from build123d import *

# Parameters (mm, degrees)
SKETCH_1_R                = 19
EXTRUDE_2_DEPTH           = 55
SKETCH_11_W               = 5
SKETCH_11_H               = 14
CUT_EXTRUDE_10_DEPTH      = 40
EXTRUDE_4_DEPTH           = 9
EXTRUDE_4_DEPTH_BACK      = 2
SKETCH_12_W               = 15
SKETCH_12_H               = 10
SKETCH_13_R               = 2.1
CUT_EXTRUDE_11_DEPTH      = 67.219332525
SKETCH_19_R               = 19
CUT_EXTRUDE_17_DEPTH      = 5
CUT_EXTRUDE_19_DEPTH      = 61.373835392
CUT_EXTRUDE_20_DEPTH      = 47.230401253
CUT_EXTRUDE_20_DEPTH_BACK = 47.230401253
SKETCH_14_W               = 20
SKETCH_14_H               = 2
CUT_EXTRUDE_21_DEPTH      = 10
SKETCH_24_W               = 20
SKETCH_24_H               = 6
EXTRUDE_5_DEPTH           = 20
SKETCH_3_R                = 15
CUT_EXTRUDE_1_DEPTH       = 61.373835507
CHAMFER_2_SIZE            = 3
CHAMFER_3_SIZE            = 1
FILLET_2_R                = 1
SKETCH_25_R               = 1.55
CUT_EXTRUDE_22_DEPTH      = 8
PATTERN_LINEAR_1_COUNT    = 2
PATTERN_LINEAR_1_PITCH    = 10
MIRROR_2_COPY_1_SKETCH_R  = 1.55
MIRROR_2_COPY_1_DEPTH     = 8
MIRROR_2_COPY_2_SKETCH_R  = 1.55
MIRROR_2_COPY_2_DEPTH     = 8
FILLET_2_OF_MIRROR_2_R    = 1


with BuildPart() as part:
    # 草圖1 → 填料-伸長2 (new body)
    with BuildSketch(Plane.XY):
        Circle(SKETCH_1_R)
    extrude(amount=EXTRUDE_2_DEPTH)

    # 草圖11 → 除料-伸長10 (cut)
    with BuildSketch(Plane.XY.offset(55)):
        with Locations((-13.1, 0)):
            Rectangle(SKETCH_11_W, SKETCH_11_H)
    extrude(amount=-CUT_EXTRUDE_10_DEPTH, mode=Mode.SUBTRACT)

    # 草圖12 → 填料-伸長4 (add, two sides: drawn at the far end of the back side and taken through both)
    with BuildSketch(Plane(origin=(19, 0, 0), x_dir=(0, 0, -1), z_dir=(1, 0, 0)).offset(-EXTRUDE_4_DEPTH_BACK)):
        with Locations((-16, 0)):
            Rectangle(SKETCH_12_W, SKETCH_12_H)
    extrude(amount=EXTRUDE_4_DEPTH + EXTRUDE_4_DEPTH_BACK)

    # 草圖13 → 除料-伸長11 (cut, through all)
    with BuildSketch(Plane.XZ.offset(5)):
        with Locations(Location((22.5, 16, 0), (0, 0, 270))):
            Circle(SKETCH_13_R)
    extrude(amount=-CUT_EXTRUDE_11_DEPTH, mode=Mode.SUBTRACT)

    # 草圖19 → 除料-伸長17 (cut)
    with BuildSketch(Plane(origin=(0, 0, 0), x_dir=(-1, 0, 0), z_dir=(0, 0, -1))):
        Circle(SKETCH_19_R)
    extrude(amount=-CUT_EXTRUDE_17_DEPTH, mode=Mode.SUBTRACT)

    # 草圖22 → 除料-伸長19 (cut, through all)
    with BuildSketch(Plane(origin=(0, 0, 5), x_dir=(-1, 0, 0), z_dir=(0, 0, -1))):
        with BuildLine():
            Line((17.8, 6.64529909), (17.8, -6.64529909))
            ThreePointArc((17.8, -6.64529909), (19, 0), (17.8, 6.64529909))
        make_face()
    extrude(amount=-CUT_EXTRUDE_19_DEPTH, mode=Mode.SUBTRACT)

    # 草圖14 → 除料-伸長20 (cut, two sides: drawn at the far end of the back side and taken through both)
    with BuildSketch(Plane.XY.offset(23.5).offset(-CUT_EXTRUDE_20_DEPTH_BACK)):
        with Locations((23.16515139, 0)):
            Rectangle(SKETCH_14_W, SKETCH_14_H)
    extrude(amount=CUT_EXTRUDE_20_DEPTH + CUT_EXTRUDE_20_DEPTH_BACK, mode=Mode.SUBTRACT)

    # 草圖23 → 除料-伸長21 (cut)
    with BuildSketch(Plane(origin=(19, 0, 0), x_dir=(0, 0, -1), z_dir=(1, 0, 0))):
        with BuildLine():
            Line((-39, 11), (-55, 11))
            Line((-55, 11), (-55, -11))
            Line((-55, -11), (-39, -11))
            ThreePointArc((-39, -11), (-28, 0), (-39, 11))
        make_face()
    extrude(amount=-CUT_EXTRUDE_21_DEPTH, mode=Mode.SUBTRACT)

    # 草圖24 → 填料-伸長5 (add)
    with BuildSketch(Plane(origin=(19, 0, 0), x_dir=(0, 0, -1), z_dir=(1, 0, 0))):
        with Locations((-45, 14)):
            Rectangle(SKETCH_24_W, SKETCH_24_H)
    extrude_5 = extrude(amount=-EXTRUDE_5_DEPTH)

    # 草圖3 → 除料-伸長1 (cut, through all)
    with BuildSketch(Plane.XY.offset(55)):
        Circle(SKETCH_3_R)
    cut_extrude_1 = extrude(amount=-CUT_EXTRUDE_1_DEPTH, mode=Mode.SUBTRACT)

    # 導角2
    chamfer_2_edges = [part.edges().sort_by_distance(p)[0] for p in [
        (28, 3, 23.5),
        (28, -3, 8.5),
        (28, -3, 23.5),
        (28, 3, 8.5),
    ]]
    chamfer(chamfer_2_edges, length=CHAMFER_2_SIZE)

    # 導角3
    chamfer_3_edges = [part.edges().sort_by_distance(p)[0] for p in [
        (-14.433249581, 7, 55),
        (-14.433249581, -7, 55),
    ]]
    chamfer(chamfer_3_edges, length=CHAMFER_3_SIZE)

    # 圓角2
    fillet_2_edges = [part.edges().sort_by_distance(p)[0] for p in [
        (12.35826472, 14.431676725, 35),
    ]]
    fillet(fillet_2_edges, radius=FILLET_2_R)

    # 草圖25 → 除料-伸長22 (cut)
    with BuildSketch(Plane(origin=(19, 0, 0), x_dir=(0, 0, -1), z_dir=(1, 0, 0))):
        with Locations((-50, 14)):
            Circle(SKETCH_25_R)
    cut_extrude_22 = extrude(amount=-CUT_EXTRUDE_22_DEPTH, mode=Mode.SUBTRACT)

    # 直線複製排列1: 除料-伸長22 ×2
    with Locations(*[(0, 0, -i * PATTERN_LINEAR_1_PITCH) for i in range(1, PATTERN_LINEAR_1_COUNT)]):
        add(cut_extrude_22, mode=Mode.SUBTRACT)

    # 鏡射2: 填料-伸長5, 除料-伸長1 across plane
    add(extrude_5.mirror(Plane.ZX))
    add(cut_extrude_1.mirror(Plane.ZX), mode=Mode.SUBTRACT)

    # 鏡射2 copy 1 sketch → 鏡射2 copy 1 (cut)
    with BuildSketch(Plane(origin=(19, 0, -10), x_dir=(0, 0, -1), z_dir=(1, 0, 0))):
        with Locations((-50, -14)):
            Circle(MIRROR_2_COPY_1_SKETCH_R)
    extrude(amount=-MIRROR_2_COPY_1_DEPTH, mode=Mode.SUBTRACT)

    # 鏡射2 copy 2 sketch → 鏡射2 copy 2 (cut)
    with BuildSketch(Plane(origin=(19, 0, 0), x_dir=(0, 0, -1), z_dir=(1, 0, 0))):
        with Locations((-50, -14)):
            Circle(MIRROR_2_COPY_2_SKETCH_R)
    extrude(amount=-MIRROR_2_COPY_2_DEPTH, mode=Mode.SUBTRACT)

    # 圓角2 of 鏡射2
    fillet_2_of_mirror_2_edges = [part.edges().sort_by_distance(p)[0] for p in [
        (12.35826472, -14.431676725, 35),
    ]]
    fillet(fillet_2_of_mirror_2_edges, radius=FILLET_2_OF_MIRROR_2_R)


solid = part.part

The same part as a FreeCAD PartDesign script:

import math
import FreeCAD as App
import Part
import Sketcher
Q = App.Units.Quantity


def edges_at(feature, points):
    """Names of the edges that pass closest to the given points."""
    edges = feature.Shape.Edges
    near = lambda p: min(range(len(edges)), key=lambda i: edges[i].distToShape(Part.Vertex(*p))[0])
    return sorted({f"Edge{near(p) + 1}" for p in points})


def add_polygon(sketch, points):
    """Adds a closed chain of lines whose ends are joined by coincident constraints."""
    first, n = sketch.GeometryCount, len(points)
    for a, b in zip(points, points[1:] + points[:1]):
        sketch.addGeometry(Part.LineSegment(App.Vector(*a, 0), App.Vector(*b, 0)), False)
    for i in range(n):
        sketch.addConstraint(Sketcher.Constraint("Coincident", first + i, 2, first + (i + 1) % n, 1))

doc = App.newDocument("Part")
body = doc.addObject("PartDesign::Body", "Body")

sketch1 = body.newObject("Sketcher::SketchObject", "Sketch")
sketch1.AttachmentSupport = (doc.getObject("XY_Plane"), [""])
sketch1.MapMode = "FlatFace"
sketch1.addGeometry(Part.Circle(App.Vector(0, 0, 0), App.Vector(0, 0, 1), 19), False)
sketch1.addConstraint([
    Sketcher.Constraint("Coincident", 0, 3, -1, 1),
    Sketcher.Constraint("Diameter", 0, Q("38 mm")),
])
pad1 = body.newObject("PartDesign::Pad", "Pad")
pad1.Profile = sketch1
pad1.Length = 55

sketch2 = body.newObject("Sketcher::SketchObject", "Sketch001")
sketch2.AttachmentSupport = (doc.getObject("XY_Plane"), [""])
sketch2.MapMode = "FlatFace"
sketch2.AttachmentOffset = App.Placement(App.Vector(0, 0, 55), App.Rotation())
add_polygon(sketch2, [(-16, 7), (-16, -7), (-11, -7), (-11, 7)])
sketch2.addConstraint([
    Sketcher.Constraint("Vertical", 0),
    Sketcher.Constraint("Horizontal", 1),
    Sketcher.Constraint("Vertical", 2),
    Sketcher.Constraint("Horizontal", 3),
    Sketcher.Constraint("DistanceX", 1, 1, 1, 2, Q("5 mm")),
    Sketcher.Constraint("DistanceY", 0, 2, 0, 1, Q("14 mm")),
    Sketcher.Constraint("DistanceY", 0, 2, -1, 1, Q("7 mm")),
    Sketcher.Constraint("DistanceX", 0, 2, -1, 1, Q("15.6 mm")),
])
pocket1 = body.newObject("PartDesign::Pocket", "Pocket")
pocket1.Profile = sketch2
pocket1.Length = 40

sketch3 = body.newObject("Sketcher::SketchObject", "Sketch002")
sketch3.AttachmentSupport = (doc.getObject("YZ_Plane"), [""])
sketch3.MapMode = "FlatFace"
sketch3.AttachmentOffset = App.Placement(App.Vector(0, 0, 19), App.Rotation())
add_polygon(sketch3, [(5, 24), (-5, 24), (-5, 8), (5, 8)])
sketch3.addConstraint([
    Sketcher.Constraint("Horizontal", 0),
    Sketcher.Constraint("Vertical", 1),
    Sketcher.Constraint("Horizontal", 2),
    Sketcher.Constraint("Vertical", 3),
    Sketcher.Constraint("DistanceX", 0, 2, 0, 1, Q("10 mm")),
    Sketcher.Constraint("DistanceY", 1, 2, 1, 1, Q("15 mm")),
    Sketcher.Constraint("DistanceX", 0, 2, -1, 1, Q("5 mm")),
    Sketcher.Constraint("DistanceY", -1, 1, 0, 2, Q("23.5 mm")),
])
pad2 = body.newObject("PartDesign::Pad", "Pad001")
pad2.Profile = sketch3
pad2.Type = "TwoLengths"
pad2.Length = 9
pad2.Length2 = 2

sketch4 = body.newObject("Sketcher::SketchObject", "Sketch003")
sketch4.AttachmentSupport = (doc.getObject("XZ_Plane"), [""])
sketch4.MapMode = "FlatFace"
sketch4.AttachmentOffset = App.Placement(App.Vector(0, 0, 5), App.Rotation())
sketch4.addGeometry(Part.Circle(App.Vector(22.5, 16, 0), App.Vector(0, 0, 1), 2.1), False)
sketch4.addConstraint([
    Sketcher.Constraint("Diameter", 0, Q("4.2 mm")),
    Sketcher.Constraint("DistanceY", -1, 1, 0, 3, Q("16 mm")),
    Sketcher.Constraint("DistanceX", -1, 1, 0, 3, Q("22.5 mm")),
])
pocket2 = body.newObject("PartDesign::Pocket", "Pocket001")
pocket2.Profile = sketch4
pocket2.Type = "ThroughAll"

sketch5 = body.newObject("Sketcher::SketchObject", "Sketch004")
sketch5.AttachmentSupport = (doc.getObject("XY_Plane"), [""])
sketch5.MapMode = "FlatFace"
sketch5.addGeometry(Part.Circle(App.Vector(0, 0, 0), App.Vector(0, 0, 1), 19), False)
sketch5.addConstraint([
    Sketcher.Constraint("Coincident", 0, 3, -1, 1),
    Sketcher.Constraint("Diameter", 0, Q("38 mm")),
])
pocket3 = body.newObject("PartDesign::Pocket", "Pocket002")
pocket3.Profile = sketch5
pocket3.Length = 5
pocket3.Reversed = True

sketch6 = body.newObject("Sketcher::SketchObject", "Sketch005")
sketch6.AttachmentSupport = (doc.getObject("XY_Plane"), [""])
sketch6.MapMode = "FlatFace"
sketch6.AttachmentOffset = App.Placement(App.Vector(0, 0, 5), App.Rotation())
sketch6.addGeometry([
    Part.LineSegment(App.Vector(-18, 7, 0), App.Vector(-18, -7, 0)),
    Part.ArcOfCircle(Part.Circle(App.Vector(0, 0, 0), App.Vector(0, 0, 1), 19), math.radians(160), math.radians(200)),
], False)
sketch6.addConstraint([
    Sketcher.Constraint("Coincident", 0, 1, 1, 1),
    Sketcher.Constraint("Coincident", 1, 2, 0, 2),
    Sketcher.Constraint("Vertical", 0),
    Sketcher.Constraint("Coincident", 1, 3, -1, 1),
    Sketcher.Constraint("Radius", 1, Q("19 mm")),
    Sketcher.Constraint("DistanceX", 0, 1, -1, 1, Q("17.8 mm")),
])
pocket4 = body.newObject("PartDesign::Pocket", "Pocket003")
pocket4.Profile = sketch6
pocket4.Type = "ThroughAll"
pocket4.Reversed = True

sketch7 = body.newObject("Sketcher::SketchObject", "Sketch006")
sketch7.AttachmentSupport = (doc.getObject("XY_Plane"), [""])
sketch7.MapMode = "FlatFace"
sketch7.AttachmentOffset = App.Placement(App.Vector(0, 0, 23.5), App.Rotation())
add_polygon(sketch7, [(13.2, 1), (13.2, -1), (33.2, -1), (33.2, 1)])
sketch7.addConstraint([
    Sketcher.Constraint("Vertical", 0),
    Sketcher.Constraint("Horizontal", 1),
    Sketcher.Constraint("Vertical", 2),
    Sketcher.Constraint("Horizontal", 3),
    Sketcher.Constraint("DistanceX", 1, 1, 1, 2, Q("20 mm")),
    Sketcher.Constraint("DistanceY", 0, 2, 0, 1, Q("2 mm")),
    Sketcher.Constraint("DistanceY", 0, 2, -1, 1, Q("1 mm")),
    Sketcher.Constraint("DistanceX", -1, 1, 0, 2, Q("13.165151 mm")),
])
pocket5 = body.newObject("PartDesign::Pocket", "Pocket004")
pocket5.Profile = sketch7
pocket5.Type = "ThroughAll"
pocket5.Midplane = True

sketch8 = body.newObject("Sketcher::SketchObject", "Sketch007")
sketch8.AttachmentSupport = (doc.getObject("YZ_Plane"), [""])
sketch8.MapMode = "FlatFace"
sketch8.AttachmentOffset = App.Placement(App.Vector(0, 0, 19), App.Rotation())
sketch8.addGeometry([
    Part.LineSegment(App.Vector(11, 39, 0), App.Vector(11, 55, 0)),
    Part.LineSegment(App.Vector(11, 55, 0), App.Vector(-11, 55, 0)),
    Part.LineSegment(App.Vector(-11, 55, 0), App.Vector(-11, 39, 0)),
    Part.ArcOfCircle(Part.Circle(App.Vector(0, 39, 0), App.Vector(0, 0, 1), 11), math.radians(180), math.radians(360)),
], False)
sketch8.addConstraint([
    Sketcher.Constraint("Coincident", 0, 2, 1, 1),
    Sketcher.Constraint("Coincident", 1, 2, 2, 1),
    Sketcher.Constraint("Tangent", 2, 2, 3, 1),
    Sketcher.Constraint("Tangent", 3, 2, 0, 1),
    Sketcher.Constraint("Vertical", 0),
    Sketcher.Constraint("Horizontal", 1),
    Sketcher.Constraint("Vertical", 2),
    Sketcher.Constraint("PointOnObject", 3, 3, -2),
    Sketcher.Constraint("Radius", 3, Q("11 mm")),
    Sketcher.Constraint("DistanceY", 0, 1, 0, 2, Q("16 mm")),
    Sketcher.Constraint("DistanceY", -1, 1, 3, 3, Q("39 mm")),
])
pocket6 = body.newObject("PartDesign::Pocket", "Pocket005")
pocket6.Profile = sketch8
pocket6.Length = 10

sketch9 = body.newObject("Sketcher::SketchObject", "Sketch008")
sketch9.AttachmentSupport = (doc.getObject("YZ_Plane"), [""])
sketch9.MapMode = "FlatFace"
sketch9.AttachmentOffset = App.Placement(App.Vector(0, 0, 19), App.Rotation())
add_polygon(sketch9, [(17, 55), (11, 55), (11, 35), (17, 35)])
sketch9.addConstraint([
    Sketcher.Constraint("Horizontal", 0),
    Sketcher.Constraint("Vertical", 1),
    Sketcher.Constraint("Horizontal", 2),
    Sketcher.Constraint("Vertical", 3),
    Sketcher.Constraint("DistanceX", 0, 2, 0, 1, Q("6 mm")),
    Sketcher.Constraint("DistanceY", 1, 2, 1, 1, Q("20 mm")),
    Sketcher.Constraint("DistanceX", -1, 1, 0, 2, Q("11 mm")),
    Sketcher.Constraint("DistanceY", -1, 1, 0, 2, Q("55 mm")),
])
pad3 = body.newObject("PartDesign::Pad", "Pad002")
pad3.Profile = sketch9
pad3.Length = 20
pad3.Reversed = True

sketch10 = body.newObject("Sketcher::SketchObject", "Sketch009")
sketch10.AttachmentSupport = (doc.getObject("XY_Plane"), [""])
sketch10.MapMode = "FlatFace"
sketch10.AttachmentOffset = App.Placement(App.Vector(0, 0, 55), App.Rotation())
sketch10.addGeometry(Part.Circle(App.Vector(0, 0, 0), App.Vector(0, 0, 1), 15), False)
sketch10.addConstraint([
    Sketcher.Constraint("Coincident", 0, 3, -1, 1),
    Sketcher.Constraint("Diameter", 0, Q("30 mm")),
])
pocket7 = body.newObject("PartDesign::Pocket", "Pocket006")
pocket7.Profile = sketch10
pocket7.Type = "ThroughAll"
doc.recompute()

chamfer = body.newObject("PartDesign::Chamfer", "Chamfer")
chamfer.Base = (pocket7, edges_at(pocket7, [
    (28, 3, 23.5),
    (28, -3, 8.5),
    (28, -3, 23.5),
    (28, 3, 8.5),
]))
chamfer.Size = 3
doc.recompute()

chamfer2 = body.newObject("PartDesign::Chamfer", "Chamfer001")
chamfer2.Base = (chamfer, edges_at(chamfer, [(-14.433, 7, 55), (-14.433, -7, 55)]))
chamfer2.Size = 1
doc.recompute()

fillet = body.newObject("PartDesign::Fillet", "Fillet")
fillet.Base = (chamfer2, edges_at(chamfer2, [(12.358, 14.432, 35)]))
fillet.Radius = 1

sketch11 = body.newObject("Sketcher::SketchObject", "Sketch010")
sketch11.AttachmentSupport = (doc.getObject("YZ_Plane"), [""])
sketch11.MapMode = "FlatFace"
sketch11.AttachmentOffset = App.Placement(App.Vector(0, 0, 19), App.Rotation())
sketch11.addGeometry(Part.Circle(App.Vector(14, 50, 0), App.Vector(0, 0, 1), 1.6), False)
sketch11.addConstraint([
    Sketcher.Constraint("Diameter", 0, Q("3.1 mm")),
    Sketcher.Constraint("DistanceX", -1, 1, 0, 3, Q("14 mm")),
    Sketcher.Constraint("DistanceY", -1, 1, 0, 3, Q("50 mm")),
])
pocket8 = body.newObject("PartDesign::Pocket", "Pocket007")
pocket8.Profile = sketch11
pocket8.Length = 8
doc.recompute()

linearpattern = body.newObject("PartDesign::LinearPattern", "LinearPattern")
linearpattern.Originals = [pocket8]
linearpattern.Direction = (doc.getObject("Z_Axis"), [""])
linearpattern.Mode = "offset"
linearpattern.Offset = 10
linearpattern.Occurrences = 2
linearpattern.Reversed = True
body.Tip = linearpattern
doc.recompute()

mirrored = body.newObject("PartDesign::Mirrored", "Mirrored")
mirrored.Originals = [pad3, pocket7]
mirrored.MirrorPlane = (doc.getObject("XZ_Plane"), [""])
body.Tip = mirrored

sketch12 = body.newObject("Sketcher::SketchObject", "Sketch011")
sketch12.AttachmentSupport = (doc.getObject("YZ_Plane"), [""])
sketch12.MapMode = "FlatFace"
sketch12.AttachmentOffset = App.Placement(App.Vector(0, 0, 19), App.Rotation())
sketch12.addGeometry(Part.Circle(App.Vector(-14, 40, 0), App.Vector(0, 0, 1), 1.6), False)
sketch12.addConstraint([
    Sketcher.Constraint("Diameter", 0, Q("3.1 mm")),
    Sketcher.Constraint("DistanceX", 0, 3, -1, 1, Q("14 mm")),
    Sketcher.Constraint("DistanceY", -1, 1, 0, 3, Q("40 mm")),
])
pocket9 = body.newObject("PartDesign::Pocket", "Pocket008")
pocket9.Profile = sketch12
pocket9.Length = 8

sketch13 = body.newObject("Sketcher::SketchObject", "Sketch012")
sketch13.AttachmentSupport = (doc.getObject("YZ_Plane"), [""])
sketch13.MapMode = "FlatFace"
sketch13.AttachmentOffset = App.Placement(App.Vector(0, 0, 19), App.Rotation())
sketch13.addGeometry(Part.Circle(App.Vector(-14, 50, 0), App.Vector(0, 0, 1), 1.6), False)
sketch13.addConstraint([
    Sketcher.Constraint("Diameter", 0, Q("3.1 mm")),
    Sketcher.Constraint("DistanceX", 0, 3, -1, 1, Q("14 mm")),
    Sketcher.Constraint("DistanceY", -1, 1, 0, 3, Q("50 mm")),
])
pocket10 = body.newObject("PartDesign::Pocket", "Pocket009")
pocket10.Profile = sketch13
pocket10.Length = 8
doc.recompute()

fillet2 = body.newObject("PartDesign::Fillet", "Fillet001")
fillet2.Base = (pocket10, edges_at(pocket10, [(12.358, -14.432, 35)]))
fillet2.Radius = 1

doc.recompute()
